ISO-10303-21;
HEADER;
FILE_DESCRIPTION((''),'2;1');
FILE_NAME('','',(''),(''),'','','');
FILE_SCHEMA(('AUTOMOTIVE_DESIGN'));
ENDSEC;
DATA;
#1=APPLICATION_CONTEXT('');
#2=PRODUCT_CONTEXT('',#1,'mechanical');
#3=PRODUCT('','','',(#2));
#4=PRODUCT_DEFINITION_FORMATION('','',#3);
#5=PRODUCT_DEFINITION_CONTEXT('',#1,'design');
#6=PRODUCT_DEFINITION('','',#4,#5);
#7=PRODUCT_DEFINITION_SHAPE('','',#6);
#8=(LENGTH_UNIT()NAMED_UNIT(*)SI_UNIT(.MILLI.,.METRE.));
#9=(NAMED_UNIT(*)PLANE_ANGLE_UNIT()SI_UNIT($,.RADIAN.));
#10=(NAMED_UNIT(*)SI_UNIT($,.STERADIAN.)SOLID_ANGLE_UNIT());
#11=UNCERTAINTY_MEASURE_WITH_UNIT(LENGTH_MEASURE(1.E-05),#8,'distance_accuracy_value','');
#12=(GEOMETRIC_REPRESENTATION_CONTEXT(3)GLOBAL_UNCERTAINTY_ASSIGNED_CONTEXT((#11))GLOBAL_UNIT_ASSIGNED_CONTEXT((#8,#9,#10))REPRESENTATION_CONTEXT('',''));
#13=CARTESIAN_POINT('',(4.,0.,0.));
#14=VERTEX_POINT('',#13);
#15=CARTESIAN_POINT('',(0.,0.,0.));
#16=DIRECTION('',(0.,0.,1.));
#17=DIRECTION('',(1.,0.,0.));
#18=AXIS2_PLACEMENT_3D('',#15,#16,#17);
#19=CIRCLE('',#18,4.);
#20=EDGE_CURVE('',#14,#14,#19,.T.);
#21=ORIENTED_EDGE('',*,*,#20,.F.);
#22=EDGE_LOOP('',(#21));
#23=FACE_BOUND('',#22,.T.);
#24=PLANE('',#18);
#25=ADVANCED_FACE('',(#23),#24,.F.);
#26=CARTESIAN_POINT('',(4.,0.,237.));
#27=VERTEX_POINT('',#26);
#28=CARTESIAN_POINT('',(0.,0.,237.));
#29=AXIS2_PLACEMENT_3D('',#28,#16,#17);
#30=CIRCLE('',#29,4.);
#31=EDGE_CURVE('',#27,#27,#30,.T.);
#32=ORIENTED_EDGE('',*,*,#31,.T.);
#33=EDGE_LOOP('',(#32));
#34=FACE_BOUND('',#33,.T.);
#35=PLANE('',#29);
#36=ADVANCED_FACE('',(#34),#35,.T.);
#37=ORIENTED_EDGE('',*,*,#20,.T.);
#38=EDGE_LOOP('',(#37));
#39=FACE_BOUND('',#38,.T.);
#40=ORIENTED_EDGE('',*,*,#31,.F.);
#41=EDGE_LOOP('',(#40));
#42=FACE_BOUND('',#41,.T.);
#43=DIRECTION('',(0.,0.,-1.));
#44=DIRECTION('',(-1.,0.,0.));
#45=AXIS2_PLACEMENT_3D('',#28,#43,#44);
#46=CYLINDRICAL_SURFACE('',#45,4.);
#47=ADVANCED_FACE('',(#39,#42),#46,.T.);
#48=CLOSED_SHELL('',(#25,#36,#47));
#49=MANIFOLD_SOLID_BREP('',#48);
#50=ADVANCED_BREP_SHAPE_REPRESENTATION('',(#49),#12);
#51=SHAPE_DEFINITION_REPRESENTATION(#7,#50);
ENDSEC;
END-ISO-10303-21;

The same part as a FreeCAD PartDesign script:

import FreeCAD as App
import Part
import Sketcher
Q = App.Units.Quantity

doc = App.newDocument("Part")
body = doc.addObject("PartDesign::Body", "Body")

sketch1 = body.newObject("Sketcher::SketchObject", "Sketch")
sketch1.AttachmentSupport = (doc.getObject("XY_Plane"), [""])
sketch1.MapMode = "FlatFace"
sketch1.addGeometry(Part.Circle(App.Vector(0, 0, 0), App.Vector(0, 0, 1), 4), False)
sketch1.addConstraint(Sketcher.Constraint("Coincident", 0, 3, -1, 1))
sketch1.addConstraint(Sketcher.Constraint("Diameter", 0, Q("8 mm")))
pad1 = body.newObject("PartDesign::Pad", "Pad")
pad1.Profile = sketch1
pad1.Length = 237

doc.recompute()
